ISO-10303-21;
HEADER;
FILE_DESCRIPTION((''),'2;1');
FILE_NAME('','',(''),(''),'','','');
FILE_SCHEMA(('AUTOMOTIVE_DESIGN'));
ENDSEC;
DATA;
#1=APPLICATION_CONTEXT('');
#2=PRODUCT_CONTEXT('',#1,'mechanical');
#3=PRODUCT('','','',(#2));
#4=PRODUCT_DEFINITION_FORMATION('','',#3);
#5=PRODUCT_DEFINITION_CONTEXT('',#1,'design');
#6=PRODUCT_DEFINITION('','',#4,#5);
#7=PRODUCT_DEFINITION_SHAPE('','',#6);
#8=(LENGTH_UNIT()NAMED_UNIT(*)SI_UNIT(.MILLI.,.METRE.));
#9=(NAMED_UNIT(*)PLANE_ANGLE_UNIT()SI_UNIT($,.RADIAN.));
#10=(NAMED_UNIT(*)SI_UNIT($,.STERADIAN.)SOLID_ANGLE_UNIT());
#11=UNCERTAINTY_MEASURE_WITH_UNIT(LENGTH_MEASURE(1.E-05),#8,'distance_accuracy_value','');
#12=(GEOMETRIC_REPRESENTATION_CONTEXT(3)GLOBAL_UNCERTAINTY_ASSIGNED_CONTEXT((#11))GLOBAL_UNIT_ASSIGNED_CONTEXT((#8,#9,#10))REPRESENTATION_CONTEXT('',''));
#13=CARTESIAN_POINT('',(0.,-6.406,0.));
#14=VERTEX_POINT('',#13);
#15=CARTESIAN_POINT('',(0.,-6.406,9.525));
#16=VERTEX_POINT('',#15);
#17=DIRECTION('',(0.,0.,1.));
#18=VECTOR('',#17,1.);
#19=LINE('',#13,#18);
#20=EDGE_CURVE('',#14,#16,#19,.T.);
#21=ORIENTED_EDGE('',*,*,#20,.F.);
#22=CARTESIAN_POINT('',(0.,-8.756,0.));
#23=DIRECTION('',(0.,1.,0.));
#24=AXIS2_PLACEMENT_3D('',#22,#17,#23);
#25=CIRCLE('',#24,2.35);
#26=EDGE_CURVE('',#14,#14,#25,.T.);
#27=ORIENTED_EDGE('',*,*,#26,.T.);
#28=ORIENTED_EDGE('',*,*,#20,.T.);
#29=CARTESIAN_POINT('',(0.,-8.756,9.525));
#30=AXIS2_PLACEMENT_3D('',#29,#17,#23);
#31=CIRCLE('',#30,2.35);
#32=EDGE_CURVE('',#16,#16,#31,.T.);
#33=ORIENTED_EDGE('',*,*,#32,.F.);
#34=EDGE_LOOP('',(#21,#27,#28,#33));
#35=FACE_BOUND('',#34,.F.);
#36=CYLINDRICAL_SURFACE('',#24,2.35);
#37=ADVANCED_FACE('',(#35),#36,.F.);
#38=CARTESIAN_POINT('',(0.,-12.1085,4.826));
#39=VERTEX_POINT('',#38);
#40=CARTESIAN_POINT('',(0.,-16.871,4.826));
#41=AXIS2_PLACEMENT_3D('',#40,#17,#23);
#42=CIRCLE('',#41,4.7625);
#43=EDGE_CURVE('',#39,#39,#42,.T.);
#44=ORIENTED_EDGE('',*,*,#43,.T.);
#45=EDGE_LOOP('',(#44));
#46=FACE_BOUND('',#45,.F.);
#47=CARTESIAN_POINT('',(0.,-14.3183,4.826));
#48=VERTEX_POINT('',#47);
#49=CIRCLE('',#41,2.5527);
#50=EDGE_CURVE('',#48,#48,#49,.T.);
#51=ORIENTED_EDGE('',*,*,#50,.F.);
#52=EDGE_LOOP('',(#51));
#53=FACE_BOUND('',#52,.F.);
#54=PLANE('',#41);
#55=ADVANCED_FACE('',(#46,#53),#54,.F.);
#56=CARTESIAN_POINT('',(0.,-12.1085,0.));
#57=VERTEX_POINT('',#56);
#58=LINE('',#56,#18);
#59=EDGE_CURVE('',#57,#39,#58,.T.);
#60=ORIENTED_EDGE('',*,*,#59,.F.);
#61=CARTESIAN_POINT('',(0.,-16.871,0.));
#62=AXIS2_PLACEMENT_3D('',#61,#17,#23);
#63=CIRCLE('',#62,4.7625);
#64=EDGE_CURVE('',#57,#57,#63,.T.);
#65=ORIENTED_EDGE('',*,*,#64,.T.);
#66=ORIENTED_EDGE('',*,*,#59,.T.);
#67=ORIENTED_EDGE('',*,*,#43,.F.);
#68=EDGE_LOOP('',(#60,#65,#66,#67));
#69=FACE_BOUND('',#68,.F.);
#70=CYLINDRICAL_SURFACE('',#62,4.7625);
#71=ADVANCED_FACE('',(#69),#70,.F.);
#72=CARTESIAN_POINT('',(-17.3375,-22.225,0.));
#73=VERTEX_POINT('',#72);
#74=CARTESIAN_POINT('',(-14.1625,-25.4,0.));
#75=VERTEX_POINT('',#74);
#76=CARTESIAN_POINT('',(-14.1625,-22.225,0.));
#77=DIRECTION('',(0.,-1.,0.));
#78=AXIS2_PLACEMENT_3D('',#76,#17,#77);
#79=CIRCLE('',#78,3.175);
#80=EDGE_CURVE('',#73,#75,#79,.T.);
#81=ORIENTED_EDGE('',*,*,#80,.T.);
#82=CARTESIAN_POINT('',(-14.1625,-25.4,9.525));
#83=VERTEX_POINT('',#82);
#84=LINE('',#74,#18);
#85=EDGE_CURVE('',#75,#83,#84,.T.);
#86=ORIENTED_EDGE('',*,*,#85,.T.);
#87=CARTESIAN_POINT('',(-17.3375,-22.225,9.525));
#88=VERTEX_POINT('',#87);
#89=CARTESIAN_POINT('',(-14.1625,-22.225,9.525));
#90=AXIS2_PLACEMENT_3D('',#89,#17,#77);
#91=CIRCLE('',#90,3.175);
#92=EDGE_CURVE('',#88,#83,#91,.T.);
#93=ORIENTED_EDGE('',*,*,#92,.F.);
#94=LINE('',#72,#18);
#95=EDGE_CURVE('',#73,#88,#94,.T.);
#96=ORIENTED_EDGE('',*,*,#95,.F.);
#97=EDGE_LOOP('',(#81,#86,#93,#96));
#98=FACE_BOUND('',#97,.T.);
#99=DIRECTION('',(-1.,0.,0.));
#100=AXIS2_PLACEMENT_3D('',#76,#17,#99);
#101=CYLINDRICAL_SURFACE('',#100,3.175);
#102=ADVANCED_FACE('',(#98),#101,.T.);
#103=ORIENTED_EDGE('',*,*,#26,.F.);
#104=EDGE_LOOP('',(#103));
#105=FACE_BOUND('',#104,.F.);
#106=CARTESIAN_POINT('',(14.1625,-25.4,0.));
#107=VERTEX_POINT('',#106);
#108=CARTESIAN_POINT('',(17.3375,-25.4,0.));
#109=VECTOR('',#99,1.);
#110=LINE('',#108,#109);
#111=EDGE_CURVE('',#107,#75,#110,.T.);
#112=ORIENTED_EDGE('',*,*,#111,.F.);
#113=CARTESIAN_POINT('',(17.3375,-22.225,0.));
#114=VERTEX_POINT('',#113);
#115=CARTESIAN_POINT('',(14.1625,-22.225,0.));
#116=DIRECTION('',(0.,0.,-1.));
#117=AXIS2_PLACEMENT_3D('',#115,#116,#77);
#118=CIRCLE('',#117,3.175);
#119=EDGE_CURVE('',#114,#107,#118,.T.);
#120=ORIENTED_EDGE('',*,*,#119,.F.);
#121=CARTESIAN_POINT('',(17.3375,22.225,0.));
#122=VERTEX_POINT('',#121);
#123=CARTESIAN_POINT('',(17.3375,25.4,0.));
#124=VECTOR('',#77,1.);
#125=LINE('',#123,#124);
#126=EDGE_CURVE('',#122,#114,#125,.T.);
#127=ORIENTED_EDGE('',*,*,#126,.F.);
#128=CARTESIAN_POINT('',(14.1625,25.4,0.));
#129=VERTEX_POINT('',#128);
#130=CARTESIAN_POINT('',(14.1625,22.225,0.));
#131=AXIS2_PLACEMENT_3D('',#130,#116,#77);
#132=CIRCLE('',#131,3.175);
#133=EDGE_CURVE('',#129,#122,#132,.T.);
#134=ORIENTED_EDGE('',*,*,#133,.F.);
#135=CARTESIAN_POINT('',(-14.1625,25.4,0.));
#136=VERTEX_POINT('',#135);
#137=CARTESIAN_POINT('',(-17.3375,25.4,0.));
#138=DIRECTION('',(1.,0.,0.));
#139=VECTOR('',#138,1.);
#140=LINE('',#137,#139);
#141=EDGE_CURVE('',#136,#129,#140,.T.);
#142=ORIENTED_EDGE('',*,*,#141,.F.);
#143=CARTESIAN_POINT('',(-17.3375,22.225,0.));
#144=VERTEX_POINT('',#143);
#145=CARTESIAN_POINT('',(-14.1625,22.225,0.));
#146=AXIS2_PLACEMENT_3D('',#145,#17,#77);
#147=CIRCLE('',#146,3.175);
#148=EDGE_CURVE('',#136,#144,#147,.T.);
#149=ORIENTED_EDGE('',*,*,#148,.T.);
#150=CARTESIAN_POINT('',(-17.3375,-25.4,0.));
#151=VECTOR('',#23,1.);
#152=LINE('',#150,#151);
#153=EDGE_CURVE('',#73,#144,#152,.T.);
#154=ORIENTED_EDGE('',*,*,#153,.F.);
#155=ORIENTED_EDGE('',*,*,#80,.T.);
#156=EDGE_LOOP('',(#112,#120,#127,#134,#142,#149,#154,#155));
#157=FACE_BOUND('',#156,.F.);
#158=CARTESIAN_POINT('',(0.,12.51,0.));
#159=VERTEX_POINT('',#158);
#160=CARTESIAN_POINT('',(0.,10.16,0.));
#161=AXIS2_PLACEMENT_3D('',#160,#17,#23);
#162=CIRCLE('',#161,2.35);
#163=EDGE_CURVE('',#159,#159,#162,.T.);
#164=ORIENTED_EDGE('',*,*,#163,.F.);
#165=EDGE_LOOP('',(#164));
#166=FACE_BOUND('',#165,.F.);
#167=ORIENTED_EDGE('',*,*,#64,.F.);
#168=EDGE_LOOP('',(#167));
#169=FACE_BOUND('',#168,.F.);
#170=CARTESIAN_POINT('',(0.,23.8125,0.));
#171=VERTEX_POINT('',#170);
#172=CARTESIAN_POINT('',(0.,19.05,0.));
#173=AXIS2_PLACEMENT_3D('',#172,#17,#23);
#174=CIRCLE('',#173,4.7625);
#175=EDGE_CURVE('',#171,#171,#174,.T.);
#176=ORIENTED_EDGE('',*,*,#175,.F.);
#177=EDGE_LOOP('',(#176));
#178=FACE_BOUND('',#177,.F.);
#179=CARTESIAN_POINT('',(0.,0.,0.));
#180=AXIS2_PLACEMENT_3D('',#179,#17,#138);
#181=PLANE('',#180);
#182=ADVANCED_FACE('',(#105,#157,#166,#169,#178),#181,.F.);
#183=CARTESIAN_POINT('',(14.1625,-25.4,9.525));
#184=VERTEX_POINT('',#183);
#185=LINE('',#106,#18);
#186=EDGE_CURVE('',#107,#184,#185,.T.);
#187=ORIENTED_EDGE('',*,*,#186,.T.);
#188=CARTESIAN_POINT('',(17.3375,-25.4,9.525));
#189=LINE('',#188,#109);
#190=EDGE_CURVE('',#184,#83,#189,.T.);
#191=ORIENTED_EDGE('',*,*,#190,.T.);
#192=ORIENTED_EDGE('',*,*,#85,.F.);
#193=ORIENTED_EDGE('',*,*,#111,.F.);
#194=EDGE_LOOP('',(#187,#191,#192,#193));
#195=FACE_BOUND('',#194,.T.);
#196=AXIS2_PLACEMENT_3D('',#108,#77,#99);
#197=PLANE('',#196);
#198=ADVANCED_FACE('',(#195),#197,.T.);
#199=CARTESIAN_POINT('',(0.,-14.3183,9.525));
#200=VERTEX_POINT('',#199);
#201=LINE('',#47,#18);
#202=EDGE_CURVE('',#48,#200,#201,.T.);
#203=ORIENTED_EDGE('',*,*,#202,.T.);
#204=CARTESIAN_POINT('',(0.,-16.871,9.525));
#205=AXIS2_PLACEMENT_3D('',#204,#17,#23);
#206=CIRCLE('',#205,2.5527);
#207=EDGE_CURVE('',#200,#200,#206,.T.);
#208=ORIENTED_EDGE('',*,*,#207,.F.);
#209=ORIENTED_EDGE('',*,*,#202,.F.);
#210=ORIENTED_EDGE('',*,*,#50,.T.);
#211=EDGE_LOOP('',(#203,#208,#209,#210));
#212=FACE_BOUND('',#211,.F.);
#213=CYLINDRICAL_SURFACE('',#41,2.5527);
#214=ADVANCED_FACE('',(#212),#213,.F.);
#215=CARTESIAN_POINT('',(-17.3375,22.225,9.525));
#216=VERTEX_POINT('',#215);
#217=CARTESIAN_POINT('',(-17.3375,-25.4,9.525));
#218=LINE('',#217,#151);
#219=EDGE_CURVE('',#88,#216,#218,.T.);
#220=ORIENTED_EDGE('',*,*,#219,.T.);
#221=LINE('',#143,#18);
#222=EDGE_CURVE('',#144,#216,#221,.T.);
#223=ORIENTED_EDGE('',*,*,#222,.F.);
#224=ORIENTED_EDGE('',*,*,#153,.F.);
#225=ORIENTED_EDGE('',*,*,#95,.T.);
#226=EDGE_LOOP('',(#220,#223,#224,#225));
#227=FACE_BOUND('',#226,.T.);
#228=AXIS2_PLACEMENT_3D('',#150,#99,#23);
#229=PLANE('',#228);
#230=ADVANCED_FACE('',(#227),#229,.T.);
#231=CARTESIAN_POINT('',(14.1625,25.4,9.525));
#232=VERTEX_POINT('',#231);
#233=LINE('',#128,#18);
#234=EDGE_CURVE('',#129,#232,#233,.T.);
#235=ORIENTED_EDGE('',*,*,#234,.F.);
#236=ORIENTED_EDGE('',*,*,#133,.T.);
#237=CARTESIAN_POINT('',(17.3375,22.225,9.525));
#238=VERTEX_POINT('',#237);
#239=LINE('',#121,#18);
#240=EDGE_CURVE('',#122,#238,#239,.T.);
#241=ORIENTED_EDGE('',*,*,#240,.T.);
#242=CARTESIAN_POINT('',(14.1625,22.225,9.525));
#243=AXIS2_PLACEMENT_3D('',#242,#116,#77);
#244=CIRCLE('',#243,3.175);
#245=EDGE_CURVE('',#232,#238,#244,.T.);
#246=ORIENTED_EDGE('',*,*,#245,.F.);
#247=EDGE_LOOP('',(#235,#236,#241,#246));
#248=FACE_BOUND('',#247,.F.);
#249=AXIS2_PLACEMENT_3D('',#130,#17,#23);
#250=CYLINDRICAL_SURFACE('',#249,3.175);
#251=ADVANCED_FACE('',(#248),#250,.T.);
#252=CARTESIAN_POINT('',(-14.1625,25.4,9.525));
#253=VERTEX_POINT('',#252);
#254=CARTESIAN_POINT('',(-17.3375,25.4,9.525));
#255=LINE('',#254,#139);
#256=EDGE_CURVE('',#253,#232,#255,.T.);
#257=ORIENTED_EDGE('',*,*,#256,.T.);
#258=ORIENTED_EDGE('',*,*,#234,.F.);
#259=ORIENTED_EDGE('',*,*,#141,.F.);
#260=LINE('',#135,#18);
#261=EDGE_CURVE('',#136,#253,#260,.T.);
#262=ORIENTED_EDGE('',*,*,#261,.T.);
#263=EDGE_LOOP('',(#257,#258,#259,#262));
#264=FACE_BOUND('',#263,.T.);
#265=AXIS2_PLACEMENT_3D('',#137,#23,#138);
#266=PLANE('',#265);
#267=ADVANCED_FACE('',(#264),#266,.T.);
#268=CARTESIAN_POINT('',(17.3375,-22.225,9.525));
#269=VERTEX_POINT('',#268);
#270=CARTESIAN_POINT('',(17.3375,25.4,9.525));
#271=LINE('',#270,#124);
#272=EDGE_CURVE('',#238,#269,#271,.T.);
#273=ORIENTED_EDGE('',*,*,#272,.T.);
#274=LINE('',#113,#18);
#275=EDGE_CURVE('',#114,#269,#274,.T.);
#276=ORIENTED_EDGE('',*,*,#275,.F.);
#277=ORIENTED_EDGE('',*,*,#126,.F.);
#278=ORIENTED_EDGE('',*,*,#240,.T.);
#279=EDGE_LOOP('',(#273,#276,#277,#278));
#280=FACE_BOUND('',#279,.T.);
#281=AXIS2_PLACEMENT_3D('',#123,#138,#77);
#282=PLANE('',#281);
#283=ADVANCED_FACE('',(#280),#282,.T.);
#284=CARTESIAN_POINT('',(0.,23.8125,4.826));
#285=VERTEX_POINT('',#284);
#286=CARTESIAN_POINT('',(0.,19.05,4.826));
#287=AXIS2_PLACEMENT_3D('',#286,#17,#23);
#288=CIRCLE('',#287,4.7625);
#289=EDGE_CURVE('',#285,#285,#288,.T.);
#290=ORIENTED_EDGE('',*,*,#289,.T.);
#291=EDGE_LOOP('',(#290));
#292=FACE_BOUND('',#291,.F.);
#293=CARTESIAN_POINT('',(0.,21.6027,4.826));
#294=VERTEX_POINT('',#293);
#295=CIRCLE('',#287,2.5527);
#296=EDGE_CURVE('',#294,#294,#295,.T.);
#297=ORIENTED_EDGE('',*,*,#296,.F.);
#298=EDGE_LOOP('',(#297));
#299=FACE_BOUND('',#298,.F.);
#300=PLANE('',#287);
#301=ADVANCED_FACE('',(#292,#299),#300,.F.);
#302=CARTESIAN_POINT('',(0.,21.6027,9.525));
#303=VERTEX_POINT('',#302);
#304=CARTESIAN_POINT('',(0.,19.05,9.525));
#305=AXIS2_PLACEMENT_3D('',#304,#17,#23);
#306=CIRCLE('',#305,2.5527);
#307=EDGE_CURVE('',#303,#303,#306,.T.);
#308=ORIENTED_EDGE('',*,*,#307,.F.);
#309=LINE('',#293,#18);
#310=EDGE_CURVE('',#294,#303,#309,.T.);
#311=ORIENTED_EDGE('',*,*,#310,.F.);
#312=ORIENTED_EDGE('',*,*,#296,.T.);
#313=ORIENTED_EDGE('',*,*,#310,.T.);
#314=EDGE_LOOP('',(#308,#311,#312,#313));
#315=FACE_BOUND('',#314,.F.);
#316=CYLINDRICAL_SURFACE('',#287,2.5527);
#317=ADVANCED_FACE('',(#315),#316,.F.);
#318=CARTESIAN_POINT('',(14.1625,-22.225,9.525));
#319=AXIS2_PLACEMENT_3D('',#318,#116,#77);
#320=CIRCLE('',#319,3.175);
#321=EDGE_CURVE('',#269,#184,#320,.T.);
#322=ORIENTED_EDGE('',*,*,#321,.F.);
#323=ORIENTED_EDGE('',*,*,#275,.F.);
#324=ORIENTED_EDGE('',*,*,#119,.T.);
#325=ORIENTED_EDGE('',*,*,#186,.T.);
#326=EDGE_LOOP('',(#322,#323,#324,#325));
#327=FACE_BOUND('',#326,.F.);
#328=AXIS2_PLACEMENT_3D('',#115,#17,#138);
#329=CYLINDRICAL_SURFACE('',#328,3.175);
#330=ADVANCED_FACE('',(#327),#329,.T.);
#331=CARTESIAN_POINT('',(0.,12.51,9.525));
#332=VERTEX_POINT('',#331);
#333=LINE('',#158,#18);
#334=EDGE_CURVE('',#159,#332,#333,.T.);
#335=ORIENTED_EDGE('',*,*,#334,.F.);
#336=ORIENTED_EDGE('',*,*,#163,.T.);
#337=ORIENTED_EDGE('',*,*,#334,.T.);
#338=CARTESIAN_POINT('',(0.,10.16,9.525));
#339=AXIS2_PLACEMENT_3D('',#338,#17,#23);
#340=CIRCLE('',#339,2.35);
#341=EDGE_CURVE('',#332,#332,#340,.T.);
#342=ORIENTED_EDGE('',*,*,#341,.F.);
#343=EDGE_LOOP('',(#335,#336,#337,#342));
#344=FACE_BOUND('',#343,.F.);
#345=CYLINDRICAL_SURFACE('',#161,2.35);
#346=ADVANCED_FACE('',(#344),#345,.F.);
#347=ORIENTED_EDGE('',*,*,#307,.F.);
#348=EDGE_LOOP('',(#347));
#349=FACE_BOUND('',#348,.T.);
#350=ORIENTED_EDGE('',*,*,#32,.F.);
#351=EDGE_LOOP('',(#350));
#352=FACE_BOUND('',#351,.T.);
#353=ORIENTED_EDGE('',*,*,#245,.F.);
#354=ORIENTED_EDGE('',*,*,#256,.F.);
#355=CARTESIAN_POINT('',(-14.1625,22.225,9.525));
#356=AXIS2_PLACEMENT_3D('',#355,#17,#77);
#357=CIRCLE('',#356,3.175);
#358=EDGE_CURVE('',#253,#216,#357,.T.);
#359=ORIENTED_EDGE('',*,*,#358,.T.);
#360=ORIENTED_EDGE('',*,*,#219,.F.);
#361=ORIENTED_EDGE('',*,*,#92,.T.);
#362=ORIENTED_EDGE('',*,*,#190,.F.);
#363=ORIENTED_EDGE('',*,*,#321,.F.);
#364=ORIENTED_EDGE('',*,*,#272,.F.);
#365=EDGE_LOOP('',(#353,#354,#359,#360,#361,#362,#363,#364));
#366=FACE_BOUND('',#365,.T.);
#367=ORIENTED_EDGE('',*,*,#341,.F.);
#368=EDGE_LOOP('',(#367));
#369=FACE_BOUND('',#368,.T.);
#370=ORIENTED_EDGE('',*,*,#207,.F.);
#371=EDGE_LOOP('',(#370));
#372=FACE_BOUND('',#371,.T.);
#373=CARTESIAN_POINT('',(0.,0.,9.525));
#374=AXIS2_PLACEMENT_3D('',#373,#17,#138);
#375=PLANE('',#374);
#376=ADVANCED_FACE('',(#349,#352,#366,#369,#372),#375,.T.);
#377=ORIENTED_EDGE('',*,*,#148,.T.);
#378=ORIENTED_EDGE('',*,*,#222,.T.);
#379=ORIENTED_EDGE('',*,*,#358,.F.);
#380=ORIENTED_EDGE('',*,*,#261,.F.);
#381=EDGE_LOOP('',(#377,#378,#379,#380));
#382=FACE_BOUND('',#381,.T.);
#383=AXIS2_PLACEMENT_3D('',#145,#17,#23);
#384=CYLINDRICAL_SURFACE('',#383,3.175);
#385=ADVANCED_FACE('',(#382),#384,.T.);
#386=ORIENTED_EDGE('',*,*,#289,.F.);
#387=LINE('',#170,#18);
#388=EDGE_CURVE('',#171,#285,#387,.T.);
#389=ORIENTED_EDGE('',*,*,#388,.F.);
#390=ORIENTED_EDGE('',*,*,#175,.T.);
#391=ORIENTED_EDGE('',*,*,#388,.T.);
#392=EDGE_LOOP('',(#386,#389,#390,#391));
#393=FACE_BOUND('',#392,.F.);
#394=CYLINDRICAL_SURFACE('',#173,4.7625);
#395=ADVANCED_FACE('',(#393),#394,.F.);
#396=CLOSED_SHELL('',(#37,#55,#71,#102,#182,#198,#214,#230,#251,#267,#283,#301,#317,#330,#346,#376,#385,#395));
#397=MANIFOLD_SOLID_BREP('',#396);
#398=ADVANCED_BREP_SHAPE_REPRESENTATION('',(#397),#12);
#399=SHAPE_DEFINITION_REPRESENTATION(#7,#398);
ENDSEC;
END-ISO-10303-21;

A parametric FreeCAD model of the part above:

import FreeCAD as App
import Part
import Sketcher
Q = App.Units.Quantity


def edges_at(feature, points):
    """Names of the edges that pass closest to the given points."""
    edges = feature.Shape.Edges
    near = lambda p: min(range(len(edges)), key=lambda i: edges[i].distToShape(Part.Vertex(*p))[0])
    return sorted({f"Edge{near(p) + 1}" for p in points})

doc = App.newDocument("Part")
body = doc.addObject("PartDesign::Body", "Body")

# Sketch on XY plane
sketch1 = body.newObject("Sketcher::SketchObject", "Sketch")
sketch1.AttachmentSupport = (doc.getObject("XY_Plane"), [""])
sketch1.MapMode = "FlatFace"
sketch1.addGeometry(Part.LineSegment(App.Vector(17.3375, 25.4, 0), App.Vector(-17.3375, 25.4, 0)), False)
sketch1.addGeometry(Part.LineSegment(App.Vector(-17.3375, 25.4, 0), App.Vector(-17.3375, -25.4, 0)), False)
sketch1.addGeometry(Part.LineSegment(App.Vector(-17.3375, -25.4, 0), App.Vector(17.3375, -25.4, 0)), False)
sketch1.addGeometry(Part.LineSegment(App.Vector(17.3375, -25.4, 0), App.Vector(17.3375, 25.4, 0)), False)
sketch1.addConstraint(Sketcher.Constraint("Coincident", 0, 2, 1, 1))
sketch1.addConstraint(Sketcher.Constraint("Coincident", 1, 2, 2, 1))
sketch1.addConstraint(Sketcher.Constraint("Coincident", 2, 2, 3, 1))
sketch1.addConstraint(Sketcher.Constraint("Coincident", 3, 2, 0, 1))
sketch1.addConstraint(Sketcher.Constraint("Horizontal", 0))
sketch1.addConstraint(Sketcher.Constraint("Vertical", 1))
sketch1.addConstraint(Sketcher.Constraint("Horizontal", 2))
sketch1.addConstraint(Sketcher.Constraint("Vertical", 3))
sketch1.addConstraint(Sketcher.Constraint("Symmetric", 0, 2, 2, 2, -1, 1))
sketch1.addConstraint(Sketcher.Constraint("DistanceY", 1, 2, 1, 1, Q("2 in")))
sketch1.addConstraint(Sketcher.Constraint("DistanceX", 0, 2, 0, 1, 34.675))
pad1 = body.newObject("PartDesign::Pad", "Pad")
pad1.Profile = sketch1
pad1.Length = Q("0.375 in")

# Sketch on XY plane
sketch2 = body.newObject("Sketcher::SketchObject", "Sketch001")
sketch2.AttachmentSupport = (doc.getObject("XY_Plane"), [""])
sketch2.MapMode = "FlatFace"
sketch2.addGeometry(Part.Circle(App.Vector(0, 19.05, 0), App.Vector(0, 0, 1), 2.5527), False)
sketch2.addGeometry(Part.Circle(App.Vector(0, -16.871, 0), App.Vector(0, 0, 1), 2.5527), False)
sketch2.addConstraint(Sketcher.Constraint("Equal", 0, 1))
sketch2.addConstraint(Sketcher.Constraint("PointOnObject", 0, 3, -2))
sketch2.addConstraint(Sketcher.Constraint("PointOnObject", 1, 3, -2))
sketch2.addConstraint(Sketcher.Constraint("Diameter", 0, Q("0.201 in")))
sketch2.addConstraint(Sketcher.Constraint("DistanceY", -1, 1, 0, 3, Q("0.75 in")))
sketch2.addConstraint(Sketcher.Constraint("DistanceY", 1, 3, -1, 1, 16.871))
doc.recompute()
hole = body.newObject("PartDesign::Hole", "Hole")
hole.Profile = sketch2
hole.ThreadType = "None"
hole.Diameter = Q("0.201 in")
hole.DepthType = "ThroughAll"
hole.HoleCutType = "Counterbore"
hole.HoleCutDiameter = Q("0.375 in")
hole.HoleCutDepth = Q("0.19 in")
hole.Reversed = True

# Sketch on XY plane
sketch3 = body.newObject("Sketcher::SketchObject", "Sketch002")
sketch3.AttachmentSupport = (doc.getObject("XY_Plane"), [""])
sketch3.MapMode = "FlatFace"
sketch3.addGeometry(Part.Circle(App.Vector(0, -8.756, 0), App.Vector(0, 0, 1), 2.35), False)
sketch3.addGeometry(Part.Circle(App.Vector(0, 10.16, 0), App.Vector(0, 0, 1), 2.35), False)
sketch3.addConstraint(Sketcher.Constraint("Equal", 0, 1))
sketch3.addConstraint(Sketcher.Constraint("PointOnObject", 0, 3, -2))
sketch3.addConstraint(Sketcher.Constraint("PointOnObject", 1, 3, -2))
sketch3.addConstraint(Sketcher.Constraint("DistanceY", -1, 1, 1, 3, Q("0.4 in")))
sketch3.addConstraint(Sketcher.Constraint("Diameter", 0, 4.7))
sketch3.addConstraint(Sketcher.Constraint("DistanceY", 0, 3, -1, 1, 8.756))
doc.recompute()
hole2 = body.newObject("PartDesign::Hole", "Hole001")
hole2.Profile = sketch3
hole2.ThreadType = "None"
hole2.Diameter = 4.7
hole2.DepthType = "ThroughAll"
hole2.Reversed = True
doc.recompute()

fillet = body.newObject("PartDesign::Fillet", "Fillet")
fillet.Base = (hole2, edges_at(hole2, [
    (17.337, 25.4, 4.763),
    (-17.337, 25.4, 4.763),
    (-17.337, -25.4, 4.763),
    (17.337, -25.4, 4.763),
]))
fillet.Radius = Q("0.125 in")

doc.recompute()
